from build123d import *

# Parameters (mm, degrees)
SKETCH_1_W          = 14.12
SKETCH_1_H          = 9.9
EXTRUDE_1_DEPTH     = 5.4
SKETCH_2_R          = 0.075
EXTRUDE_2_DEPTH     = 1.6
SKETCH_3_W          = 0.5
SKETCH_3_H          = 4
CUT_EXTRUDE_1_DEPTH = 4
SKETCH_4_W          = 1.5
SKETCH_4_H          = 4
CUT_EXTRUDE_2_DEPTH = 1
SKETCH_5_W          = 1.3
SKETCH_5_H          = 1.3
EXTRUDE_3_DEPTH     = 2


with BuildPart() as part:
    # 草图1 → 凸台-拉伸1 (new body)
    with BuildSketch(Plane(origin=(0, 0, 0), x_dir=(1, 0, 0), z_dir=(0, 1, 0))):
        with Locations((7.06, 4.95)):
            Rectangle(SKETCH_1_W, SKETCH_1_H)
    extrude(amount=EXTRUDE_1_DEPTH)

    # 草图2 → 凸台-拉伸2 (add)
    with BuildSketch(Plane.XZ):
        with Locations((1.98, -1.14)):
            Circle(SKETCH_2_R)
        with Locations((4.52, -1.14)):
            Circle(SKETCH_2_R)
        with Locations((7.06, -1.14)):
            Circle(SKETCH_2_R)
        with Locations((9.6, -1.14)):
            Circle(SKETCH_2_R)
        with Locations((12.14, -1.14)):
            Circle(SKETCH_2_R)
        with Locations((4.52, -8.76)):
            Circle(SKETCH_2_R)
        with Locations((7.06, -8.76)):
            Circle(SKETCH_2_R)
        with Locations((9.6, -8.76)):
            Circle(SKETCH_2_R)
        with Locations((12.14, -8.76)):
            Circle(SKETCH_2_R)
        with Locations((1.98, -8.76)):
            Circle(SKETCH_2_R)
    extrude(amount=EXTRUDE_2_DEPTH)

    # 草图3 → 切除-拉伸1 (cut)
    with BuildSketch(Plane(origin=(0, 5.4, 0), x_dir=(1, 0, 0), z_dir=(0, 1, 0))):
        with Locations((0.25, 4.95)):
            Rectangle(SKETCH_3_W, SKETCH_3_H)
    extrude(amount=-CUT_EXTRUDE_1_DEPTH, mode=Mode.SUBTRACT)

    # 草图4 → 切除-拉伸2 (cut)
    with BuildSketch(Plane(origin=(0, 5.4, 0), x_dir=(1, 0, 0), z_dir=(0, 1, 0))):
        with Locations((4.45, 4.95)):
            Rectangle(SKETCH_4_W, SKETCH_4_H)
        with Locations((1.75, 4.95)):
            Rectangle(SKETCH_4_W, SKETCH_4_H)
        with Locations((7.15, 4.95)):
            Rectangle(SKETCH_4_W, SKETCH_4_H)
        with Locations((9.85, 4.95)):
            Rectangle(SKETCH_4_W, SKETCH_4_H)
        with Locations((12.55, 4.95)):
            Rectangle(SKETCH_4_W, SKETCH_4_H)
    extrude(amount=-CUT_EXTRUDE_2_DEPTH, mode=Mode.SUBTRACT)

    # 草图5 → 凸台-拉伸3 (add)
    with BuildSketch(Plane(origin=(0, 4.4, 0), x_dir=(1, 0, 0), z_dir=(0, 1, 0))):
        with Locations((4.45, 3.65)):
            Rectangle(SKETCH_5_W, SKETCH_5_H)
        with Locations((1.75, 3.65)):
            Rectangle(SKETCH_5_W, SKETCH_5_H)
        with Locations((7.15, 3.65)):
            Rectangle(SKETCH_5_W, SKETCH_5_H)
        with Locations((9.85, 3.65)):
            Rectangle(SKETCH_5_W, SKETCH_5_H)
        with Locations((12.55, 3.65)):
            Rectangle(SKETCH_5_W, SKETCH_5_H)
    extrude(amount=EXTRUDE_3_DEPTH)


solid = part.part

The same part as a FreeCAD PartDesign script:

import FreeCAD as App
import Part
import Sketcher

V = App.Vector


def add_polygon(sketch, points):
    """Adds a closed chain of lines whose ends are joined by coincident constraints."""
    first, n = sketch.GeometryCount, len(points)
    for a, b in zip(points, points[1:] + points[:1]):
        sketch.addGeometry(Part.LineSegment(App.Vector(*a, 0), App.Vector(*b, 0)), False)
    for i in range(n):
        sketch.addConstraint(Sketcher.Constraint("Coincident", first + i, 2, first + (i + 1) % n, 1))

doc = App.newDocument("Part")
body = doc.addObject("PartDesign::Body", "Body")

# Sketch on XZ plane
sketch1 = body.newObject("Sketcher::SketchObject", "Sketch")
sketch1.AttachmentSupport = (doc.getObject("XZ_Plane"), [""])
sketch1.MapMode = "FlatFace"
add_polygon(sketch1, [(0, -10), (0, 0), (14, 0), (14, -10)])  # lines 0-3
sketch1.addConstraint([
    Sketcher.Constraint("Vertical", 0),
    Sketcher.Constraint("Horizontal", 1),
    Sketcher.Constraint("Vertical", 2),
    Sketcher.Constraint("Horizontal", 3),
    Sketcher.Constraint("Coincident", 0, 2, -1, 1),
    Sketcher.Constraint("DistanceY", 0, 1, 0, 2, 9.9),
    Sketcher.Constraint("DistanceX", 1, 1, 1, 2, 14.12),
])
pad1 = body.newObject("PartDesign::Pad", "Pad")
pad1.Profile = sketch1
pad1.Length = 5.4
pad1.Reversed = True

# Sketch on XZ plane
sketch2 = body.newObject("Sketcher::SketchObject", "Sketch001")
sketch2.AttachmentSupport = (doc.getObject("XZ_Plane"), [""])
sketch2.MapMode = "FlatFace"
sketch2.addGeometry([
    Part.Circle(V(1.98, -1.14, 0), V(0, 0, 1), 0.07),  # 0
    Part.Circle(V(4.52, -1.14, 0), V(0, 0, 1), 0.07),  # 1
    Part.Circle(V(7.06, -1.14, 0), V(0, 0, 1), 0.07),  # 2
    Part.Circle(V(9.6, -1.14, 0), V(0, 0, 1), 0.07),  # 3
    Part.Circle(V(12.14, -1.14, 0), V(0, 0, 1), 0.07),  # 4
    Part.Circle(V(4.52, -8.76, 0), V(0, 0, 1), 0.07),  # 5
    Part.Circle(V(7.06, -8.76, 0), V(0, 0, 1), 0.07),  # 6
    Part.Circle(V(9.6, -8.76, 0), V(0, 0, 1), 0.07),  # 7
    Part.Circle(V(12.14, -8.76, 0), V(0, 0, 1), 0.07),  # 8
    Part.Circle(V(1.98, -8.76, 0), V(0, 0, 1), 0.07),  # 9
], False)
sketch2.addConstraint([
    Sketcher.Constraint("Equal", 0, 1),
    Sketcher.Constraint("Equal", 1, 2),
    Sketcher.Constraint("Equal", 2, 3),
    Sketcher.Constraint("Equal", 3, 4),
    Sketcher.Constraint("Equal", 4, 5),
    Sketcher.Constraint("Equal", 5, 6),
    Sketcher.Constraint("Equal", 6, 7),
    Sketcher.Constraint("Equal", 7, 8),
    Sketcher.Constraint("Equal", 8, 9),
    Sketcher.Constraint("Horizontal", 0, 3, 1, 3),
    Sketcher.Constraint("Horizontal", 1, 3, 2, 3),
    Sketcher.Constraint("Horizontal", 2, 3, 3, 3),
    Sketcher.Constraint("Horizontal", 3, 3, 4, 3),
    Sketcher.Constraint("Horizontal", 5, 3, 6, 3),
    Sketcher.Constraint("Horizontal", 6, 3, 7, 3),
    Sketcher.Constraint("Horizontal", 7, 3, 8, 3),
    Sketcher.Constraint("Horizontal", 8, 3, 9, 3),
    Sketcher.Constraint("Vertical", 1, 3, 5, 3),
    Sketcher.Constraint("Vertical", 2, 3, 6, 3),
    Sketcher.Constraint("Vertical", 3, 3, 7, 3),
    Sketcher.Constraint("Vertical", 4, 3, 8, 3),
    Sketcher.Constraint("Vertical", 0, 3, 9, 3),
    Sketcher.Constraint("Diameter", 0, 0.15),
    Sketcher.Constraint("DistanceX", -1, 1, 3, 3, 9.6),
    Sketcher.Constraint("DistanceX", -1, 1, 0, 3, 1.98),
    Sketcher.Constraint("DistanceY", 0, 3, -1, 1, 1.14),
    Sketcher.Constraint("DistanceX", -1, 1, 1, 3, 4.52),
    Sketcher.Constraint("DistanceX", -1, 1, 2, 3, 7.06),
    Sketcher.Constraint("DistanceX", -1, 1, 4, 3, 12.14),
    Sketcher.Constraint("DistanceY", 5, 3, -1, 1, 8.76),
])
pad2 = body.newObject("PartDesign::Pad", "Pad001")
pad2.Profile = sketch2
pad2.Length = 1.6

# Sketch on XZ plane
sketch3 = body.newObject("Sketcher::SketchObject", "Sketch002")
sketch3.AttachmentSupport = (doc.getObject("XZ_Plane"), [""])
sketch3.MapMode = "FlatFace"
sketch3.AttachmentOffset = App.Placement(V(0, 0, -5.4), App.Rotation())
add_polygon(sketch3, [(0, -7), (0, -3), (0.5, -3), (0.5, -7)])  # lines 0-3
sketch3.addConstraint([
    Sketcher.Constraint("Vertical", 0),
    Sketcher.Constraint("Horizontal", 1),
    Sketcher.Constraint("Vertical", 2),
    Sketcher.Constraint("Horizontal", 3),
    Sketcher.Constraint("PointOnObject", 0, 2, -2),
    Sketcher.Constraint("DistanceY", 0, 1, 0, 2, 4.0),
    Sketcher.Constraint("DistanceX", 1, 1, 1, 2, 0.5),
    Sketcher.Constraint("DistanceY", 0, 2, -1, 1, 2.95),
])
pocket1 = body.newObject("PartDesign::Pocket", "Pocket")
pocket1.Profile = sketch3
pocket1.Length = 4
pocket1.Reversed = True

# Sketch on XZ plane
sketch4 = body.newObject("Sketcher::SketchObject", "Sketch003")
sketch4.AttachmentSupport = (doc.getObject("XZ_Plane"), [""])
sketch4.MapMode = "FlatFace"
sketch4.AttachmentOffset = App.Placement(V(0, 0, -5.4), App.Rotation())
add_polygon(sketch4, [(3.7, -7), (3.7, -3), (5.2, -3), (5.2, -7)])  # lines 0-3
add_polygon(sketch4, [(1, -7), (1, -3), (2.5, -3), (2.5, -7)])  # lines 4-7
add_polygon(sketch4, [(6.4, -7), (6.4, -3), (7.9, -3), (7.9, -7)])  # lines 8-11
add_polygon(sketch4, [(9.1, -7), (9.1, -3), (10.6, -3), (10.6, -7)])  # lines 12-15
add_polygon(sketch4, [(11.8, -7), (11.8, -3), (13.3, -3), (13.3, -7)])  # lines 16-19
sketch4.addConstraint([
    Sketcher.Constraint("Vertical", 0),
    Sketcher.Constraint("Horizontal", 1),
    Sketcher.Constraint("Vertical", 2),
    Sketcher.Constraint("Horizontal", 3),
    Sketcher.Constraint("Vertical", 4),
    Sketcher.Constraint("Horizontal", 5),
    Sketcher.Constraint("Vertical", 6),
    Sketcher.Constraint("Horizontal", 7),
    Sketcher.Constraint("Vertical", 8),
    Sketcher.Constraint("Horizontal", 9),
    Sketcher.Constraint("Vertical", 10),
    Sketcher.Constraint("Horizontal", 11),
    Sketcher.Constraint("Vertical", 12),
    Sketcher.Constraint("Horizontal", 13),
    Sketcher.Constraint("Vertical", 14),
    Sketcher.Constraint("Horizontal", 15),
    Sketcher.Constraint("Vertical", 16),
    Sketcher.Constraint("Horizontal", 17),
    Sketcher.Constraint("Vertical", 18),
    Sketcher.Constraint("Horizontal", 19),
    Sketcher.Constraint("Horizontal", 1, 2, 4, 2),
    Sketcher.Constraint("Horizontal", 3, 2, 6, 2),
    Sketcher.Constraint("Horizontal", 5, 2, 8, 2),
    Sketcher.Constraint("Horizontal", 7, 2, 10, 2),
    Sketcher.Constraint("Horizontal", 9, 2, 12, 2),
    Sketcher.Constraint("Horizontal", 11, 2, 14, 2),
    Sketcher.Constraint("Horizontal", 13, 2, 16, 2),
    Sketcher.Constraint("Horizontal", 15, 2, 18, 2),
    Sketcher.Constraint("Equal", 3, 5),
    Sketcher.Constraint("Equal", 7, 9),
    Sketcher.Constraint("Equal", 11, 13),
    Sketcher.Constraint("Equal", 15, 17),
    Sketcher.Constraint("DistanceY", 0, 1, 0, 2, 4.0),
    Sketcher.Constraint("DistanceX", 1, 1, 1, 2, 1.5),
    Sketcher.Constraint("DistanceX", -1, 1, 4, 2, 1.0),
    Sketcher.Constraint("DistanceX", -1, 1, 0, 2, 3.7),
    Sketcher.Constraint("DistanceX", -1, 1, 8, 2, 6.4),
    Sketcher.Constraint("DistanceX", -1, 1, 12, 2, 9.1),
    Sketcher.Constraint("DistanceX", -1, 1, 16, 2, 11.8),
    Sketcher.Constraint("DistanceY", 0, 2, -1, 1, 2.95),
])
pocket2 = body.newObject("PartDesign::Pocket", "Pocket001")
pocket2.Profile = sketch4
pocket2.Length = 1
pocket2.Reversed = True

# Sketch on XZ plane
sketch5 = body.newObject("Sketcher::SketchObject", "Sketch004")
sketch5.AttachmentSupport = (doc.getObject("XZ_Plane"), [""])
sketch5.MapMode = "FlatFace"
sketch5.AttachmentOffset = App.Placement(V(0, 0, -4.4), App.Rotation())
add_polygon(sketch5, [(3.8, -4.3), (3.8, -3), (5.1, -3), (5.1, -4.3)])  # lines 0-3
add_polygon(sketch5, [(1.1, -4.3), (1.1, -3), (2.4, -3), (2.4, -4.3)])  # lines 4-7
add_polygon(sketch5, [(6.5, -4.3), (6.5, -3), (7.8, -3), (7.8, -4.3)])  # lines 8-11
add_polygon(sketch5, [(9.2, -4.3), (9.2, -3), (10.5, -3), (10.5, -4.3)])  # lines 12-15
add_polygon(sketch5, [(11.9, -4.3), (11.9, -3), (13.2, -3), (13.2, -4.3)])  # lines 16-19
sketch5.addConstraint([
    Sketcher.Constraint("Vertical", 0),
    Sketcher.Constraint("Horizontal", 1),
    Sketcher.Constraint("Vertical", 2),
    Sketcher.Constraint("Horizontal", 3),
    Sketcher.Constraint("Vertical", 4),
    Sketcher.Constraint("Horizontal", 5),
    Sketcher.Constraint("Vertical", 6),
    Sketcher.Constraint("Horizontal", 7),
    Sketcher.Constraint("Vertical", 8),
    Sketcher.Constraint("Horizontal", 9),
    Sketcher.Constraint("Vertical", 10),
    Sketcher.Constraint("Horizontal", 11),
    Sketcher.Constraint("Vertical", 12),
    Sketcher.Constraint("Horizontal", 13),
    Sketcher.Constraint("Vertical", 14),
    Sketcher.Constraint("Horizontal", 15),
    Sketcher.Constraint("Vertical", 16),
    Sketcher.Constraint("Horizontal", 17),
    Sketcher.Constraint("Vertical", 18),
    Sketcher.Constraint("Horizontal", 19),
    Sketcher.Constraint("Horizontal", 1, 2, 4, 2),
    Sketcher.Constraint("Horizontal", 3, 2, 6, 2),
    Sketcher.Constraint("Horizontal", 5, 2, 8, 2),
    Sketcher.Constraint("Horizontal", 7, 2, 10, 2),
    Sketcher.Constraint("Horizontal", 9, 2, 12, 2),
    Sketcher.Constraint("Horizontal", 11, 2, 14, 2),
    Sketcher.Constraint("Horizontal", 13, 2, 16, 2),
    Sketcher.Constraint("Horizontal", 15, 2, 18, 2),
    Sketcher.Constraint("Equal", 3, 5),
    Sketcher.Constraint("Equal", 7, 9),
    Sketcher.Constraint("Equal", 11, 13),
    Sketcher.Constraint("Equal", 15, 17),
    Sketcher.Constraint("Equal", 19, 0),
    Sketcher.Constraint("DistanceX", 1, 1, 1, 2, 1.3),
    Sketcher.Constraint("DistanceY", 0, 2, -1, 1, 3.0),
    Sketcher.Constraint("DistanceX", 4, 2, 1, 2, 4.0),
    Sketcher.Constraint("DistanceX", 0, 2, 9, 2, 4.0),
    Sketcher.Constraint("DistanceX", 8, 2, 13, 2, 4.0),
    Sketcher.Constraint("DistanceX", 12, 2, 17, 2, 4.0),
    Sketcher.Constraint("DistanceX", -1, 1, 0, 2, 3.8),
])
pad3 = body.newObject("PartDesign::Pad", "Pad002")
pad3.Profile = sketch5
pad3.Length = 2
pad3.Reversed = True

doc.recompute()
